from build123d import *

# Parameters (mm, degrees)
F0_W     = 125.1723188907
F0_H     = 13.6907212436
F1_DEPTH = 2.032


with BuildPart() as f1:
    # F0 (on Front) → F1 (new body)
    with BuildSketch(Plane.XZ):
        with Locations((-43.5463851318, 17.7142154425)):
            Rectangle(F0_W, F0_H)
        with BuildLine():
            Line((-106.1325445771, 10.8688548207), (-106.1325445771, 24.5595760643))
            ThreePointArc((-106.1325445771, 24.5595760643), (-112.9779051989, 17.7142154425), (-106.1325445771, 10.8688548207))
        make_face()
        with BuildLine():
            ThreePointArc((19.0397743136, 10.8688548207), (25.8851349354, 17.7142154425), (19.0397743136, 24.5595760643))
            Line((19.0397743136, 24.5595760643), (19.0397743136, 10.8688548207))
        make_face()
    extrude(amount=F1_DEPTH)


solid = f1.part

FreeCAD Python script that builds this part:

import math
import FreeCAD as App
import Part
import Sketcher
Q = App.Units.Quantity

doc = App.newDocument("Part")
body = doc.addObject("PartDesign::Body", "Body")

sketch1 = doc.addObject("Sketcher::SketchObject", "Sketch")
body.addObject(sketch1)
sketch1.AttachmentSupport = (doc.XZ_Plane, [""])
sketch1.MapMode = "FlatFace"
sketch1.addGeometry(Part.LineSegment(App.Vector(-106, 11, 0), App.Vector(19, 11, 0)), False)
sketch1.addGeometry(Part.ArcOfCircle(Part.Circle(App.Vector(19, 18, 0), App.Vector(0, 0, 1), 7), math.radians(-90), math.radians(90)), False)
sketch1.addGeometry(Part.LineSegment(App.Vector(19, 25, 0), App.Vector(-106, 25, 0)), False)
sketch1.addGeometry(Part.ArcOfCircle(Part.Circle(App.Vector(-106, 18, 0), App.Vector(0, 0, 1), 7), math.radians(90), math.radians(270)), False)
sketch1.addConstraint(Sketcher.Constraint("Tangent", 0, 2, 1, 1))
sketch1.addConstraint(Sketcher.Constraint("Tangent", 1, 2, 2, 1))
sketch1.addConstraint(Sketcher.Constraint("Tangent", 2, 2, 3, 1))
sketch1.addConstraint(Sketcher.Constraint("Tangent", 3, 2, 0, 1))
sketch1.addConstraint(Sketcher.Constraint("Horizontal", 0))
sketch1.addConstraint(Sketcher.Constraint("Horizontal", 2))
sketch1.addConstraint(Sketcher.Constraint("Radius", 1, Q("6.845361 mm")))
sketch1.addConstraint(Sketcher.Constraint("DistanceX", 0, 1, 0, 2, Q("125.172319 mm")))
sketch1.addConstraint(Sketcher.Constraint("DistanceX", -1, 1, 1, 3, Q("19.039774 mm")))
sketch1.addConstraint(Sketcher.Constraint("DistanceY", -1, 1, 1, 3, Q("17.714215 mm")))
pad1 = doc.addObject("PartDesign::Pad", "Pad")
body.addObject(pad1)
pad1.Profile = sketch1
pad1.Length = Q("0.08 in")

doc.recompute()
